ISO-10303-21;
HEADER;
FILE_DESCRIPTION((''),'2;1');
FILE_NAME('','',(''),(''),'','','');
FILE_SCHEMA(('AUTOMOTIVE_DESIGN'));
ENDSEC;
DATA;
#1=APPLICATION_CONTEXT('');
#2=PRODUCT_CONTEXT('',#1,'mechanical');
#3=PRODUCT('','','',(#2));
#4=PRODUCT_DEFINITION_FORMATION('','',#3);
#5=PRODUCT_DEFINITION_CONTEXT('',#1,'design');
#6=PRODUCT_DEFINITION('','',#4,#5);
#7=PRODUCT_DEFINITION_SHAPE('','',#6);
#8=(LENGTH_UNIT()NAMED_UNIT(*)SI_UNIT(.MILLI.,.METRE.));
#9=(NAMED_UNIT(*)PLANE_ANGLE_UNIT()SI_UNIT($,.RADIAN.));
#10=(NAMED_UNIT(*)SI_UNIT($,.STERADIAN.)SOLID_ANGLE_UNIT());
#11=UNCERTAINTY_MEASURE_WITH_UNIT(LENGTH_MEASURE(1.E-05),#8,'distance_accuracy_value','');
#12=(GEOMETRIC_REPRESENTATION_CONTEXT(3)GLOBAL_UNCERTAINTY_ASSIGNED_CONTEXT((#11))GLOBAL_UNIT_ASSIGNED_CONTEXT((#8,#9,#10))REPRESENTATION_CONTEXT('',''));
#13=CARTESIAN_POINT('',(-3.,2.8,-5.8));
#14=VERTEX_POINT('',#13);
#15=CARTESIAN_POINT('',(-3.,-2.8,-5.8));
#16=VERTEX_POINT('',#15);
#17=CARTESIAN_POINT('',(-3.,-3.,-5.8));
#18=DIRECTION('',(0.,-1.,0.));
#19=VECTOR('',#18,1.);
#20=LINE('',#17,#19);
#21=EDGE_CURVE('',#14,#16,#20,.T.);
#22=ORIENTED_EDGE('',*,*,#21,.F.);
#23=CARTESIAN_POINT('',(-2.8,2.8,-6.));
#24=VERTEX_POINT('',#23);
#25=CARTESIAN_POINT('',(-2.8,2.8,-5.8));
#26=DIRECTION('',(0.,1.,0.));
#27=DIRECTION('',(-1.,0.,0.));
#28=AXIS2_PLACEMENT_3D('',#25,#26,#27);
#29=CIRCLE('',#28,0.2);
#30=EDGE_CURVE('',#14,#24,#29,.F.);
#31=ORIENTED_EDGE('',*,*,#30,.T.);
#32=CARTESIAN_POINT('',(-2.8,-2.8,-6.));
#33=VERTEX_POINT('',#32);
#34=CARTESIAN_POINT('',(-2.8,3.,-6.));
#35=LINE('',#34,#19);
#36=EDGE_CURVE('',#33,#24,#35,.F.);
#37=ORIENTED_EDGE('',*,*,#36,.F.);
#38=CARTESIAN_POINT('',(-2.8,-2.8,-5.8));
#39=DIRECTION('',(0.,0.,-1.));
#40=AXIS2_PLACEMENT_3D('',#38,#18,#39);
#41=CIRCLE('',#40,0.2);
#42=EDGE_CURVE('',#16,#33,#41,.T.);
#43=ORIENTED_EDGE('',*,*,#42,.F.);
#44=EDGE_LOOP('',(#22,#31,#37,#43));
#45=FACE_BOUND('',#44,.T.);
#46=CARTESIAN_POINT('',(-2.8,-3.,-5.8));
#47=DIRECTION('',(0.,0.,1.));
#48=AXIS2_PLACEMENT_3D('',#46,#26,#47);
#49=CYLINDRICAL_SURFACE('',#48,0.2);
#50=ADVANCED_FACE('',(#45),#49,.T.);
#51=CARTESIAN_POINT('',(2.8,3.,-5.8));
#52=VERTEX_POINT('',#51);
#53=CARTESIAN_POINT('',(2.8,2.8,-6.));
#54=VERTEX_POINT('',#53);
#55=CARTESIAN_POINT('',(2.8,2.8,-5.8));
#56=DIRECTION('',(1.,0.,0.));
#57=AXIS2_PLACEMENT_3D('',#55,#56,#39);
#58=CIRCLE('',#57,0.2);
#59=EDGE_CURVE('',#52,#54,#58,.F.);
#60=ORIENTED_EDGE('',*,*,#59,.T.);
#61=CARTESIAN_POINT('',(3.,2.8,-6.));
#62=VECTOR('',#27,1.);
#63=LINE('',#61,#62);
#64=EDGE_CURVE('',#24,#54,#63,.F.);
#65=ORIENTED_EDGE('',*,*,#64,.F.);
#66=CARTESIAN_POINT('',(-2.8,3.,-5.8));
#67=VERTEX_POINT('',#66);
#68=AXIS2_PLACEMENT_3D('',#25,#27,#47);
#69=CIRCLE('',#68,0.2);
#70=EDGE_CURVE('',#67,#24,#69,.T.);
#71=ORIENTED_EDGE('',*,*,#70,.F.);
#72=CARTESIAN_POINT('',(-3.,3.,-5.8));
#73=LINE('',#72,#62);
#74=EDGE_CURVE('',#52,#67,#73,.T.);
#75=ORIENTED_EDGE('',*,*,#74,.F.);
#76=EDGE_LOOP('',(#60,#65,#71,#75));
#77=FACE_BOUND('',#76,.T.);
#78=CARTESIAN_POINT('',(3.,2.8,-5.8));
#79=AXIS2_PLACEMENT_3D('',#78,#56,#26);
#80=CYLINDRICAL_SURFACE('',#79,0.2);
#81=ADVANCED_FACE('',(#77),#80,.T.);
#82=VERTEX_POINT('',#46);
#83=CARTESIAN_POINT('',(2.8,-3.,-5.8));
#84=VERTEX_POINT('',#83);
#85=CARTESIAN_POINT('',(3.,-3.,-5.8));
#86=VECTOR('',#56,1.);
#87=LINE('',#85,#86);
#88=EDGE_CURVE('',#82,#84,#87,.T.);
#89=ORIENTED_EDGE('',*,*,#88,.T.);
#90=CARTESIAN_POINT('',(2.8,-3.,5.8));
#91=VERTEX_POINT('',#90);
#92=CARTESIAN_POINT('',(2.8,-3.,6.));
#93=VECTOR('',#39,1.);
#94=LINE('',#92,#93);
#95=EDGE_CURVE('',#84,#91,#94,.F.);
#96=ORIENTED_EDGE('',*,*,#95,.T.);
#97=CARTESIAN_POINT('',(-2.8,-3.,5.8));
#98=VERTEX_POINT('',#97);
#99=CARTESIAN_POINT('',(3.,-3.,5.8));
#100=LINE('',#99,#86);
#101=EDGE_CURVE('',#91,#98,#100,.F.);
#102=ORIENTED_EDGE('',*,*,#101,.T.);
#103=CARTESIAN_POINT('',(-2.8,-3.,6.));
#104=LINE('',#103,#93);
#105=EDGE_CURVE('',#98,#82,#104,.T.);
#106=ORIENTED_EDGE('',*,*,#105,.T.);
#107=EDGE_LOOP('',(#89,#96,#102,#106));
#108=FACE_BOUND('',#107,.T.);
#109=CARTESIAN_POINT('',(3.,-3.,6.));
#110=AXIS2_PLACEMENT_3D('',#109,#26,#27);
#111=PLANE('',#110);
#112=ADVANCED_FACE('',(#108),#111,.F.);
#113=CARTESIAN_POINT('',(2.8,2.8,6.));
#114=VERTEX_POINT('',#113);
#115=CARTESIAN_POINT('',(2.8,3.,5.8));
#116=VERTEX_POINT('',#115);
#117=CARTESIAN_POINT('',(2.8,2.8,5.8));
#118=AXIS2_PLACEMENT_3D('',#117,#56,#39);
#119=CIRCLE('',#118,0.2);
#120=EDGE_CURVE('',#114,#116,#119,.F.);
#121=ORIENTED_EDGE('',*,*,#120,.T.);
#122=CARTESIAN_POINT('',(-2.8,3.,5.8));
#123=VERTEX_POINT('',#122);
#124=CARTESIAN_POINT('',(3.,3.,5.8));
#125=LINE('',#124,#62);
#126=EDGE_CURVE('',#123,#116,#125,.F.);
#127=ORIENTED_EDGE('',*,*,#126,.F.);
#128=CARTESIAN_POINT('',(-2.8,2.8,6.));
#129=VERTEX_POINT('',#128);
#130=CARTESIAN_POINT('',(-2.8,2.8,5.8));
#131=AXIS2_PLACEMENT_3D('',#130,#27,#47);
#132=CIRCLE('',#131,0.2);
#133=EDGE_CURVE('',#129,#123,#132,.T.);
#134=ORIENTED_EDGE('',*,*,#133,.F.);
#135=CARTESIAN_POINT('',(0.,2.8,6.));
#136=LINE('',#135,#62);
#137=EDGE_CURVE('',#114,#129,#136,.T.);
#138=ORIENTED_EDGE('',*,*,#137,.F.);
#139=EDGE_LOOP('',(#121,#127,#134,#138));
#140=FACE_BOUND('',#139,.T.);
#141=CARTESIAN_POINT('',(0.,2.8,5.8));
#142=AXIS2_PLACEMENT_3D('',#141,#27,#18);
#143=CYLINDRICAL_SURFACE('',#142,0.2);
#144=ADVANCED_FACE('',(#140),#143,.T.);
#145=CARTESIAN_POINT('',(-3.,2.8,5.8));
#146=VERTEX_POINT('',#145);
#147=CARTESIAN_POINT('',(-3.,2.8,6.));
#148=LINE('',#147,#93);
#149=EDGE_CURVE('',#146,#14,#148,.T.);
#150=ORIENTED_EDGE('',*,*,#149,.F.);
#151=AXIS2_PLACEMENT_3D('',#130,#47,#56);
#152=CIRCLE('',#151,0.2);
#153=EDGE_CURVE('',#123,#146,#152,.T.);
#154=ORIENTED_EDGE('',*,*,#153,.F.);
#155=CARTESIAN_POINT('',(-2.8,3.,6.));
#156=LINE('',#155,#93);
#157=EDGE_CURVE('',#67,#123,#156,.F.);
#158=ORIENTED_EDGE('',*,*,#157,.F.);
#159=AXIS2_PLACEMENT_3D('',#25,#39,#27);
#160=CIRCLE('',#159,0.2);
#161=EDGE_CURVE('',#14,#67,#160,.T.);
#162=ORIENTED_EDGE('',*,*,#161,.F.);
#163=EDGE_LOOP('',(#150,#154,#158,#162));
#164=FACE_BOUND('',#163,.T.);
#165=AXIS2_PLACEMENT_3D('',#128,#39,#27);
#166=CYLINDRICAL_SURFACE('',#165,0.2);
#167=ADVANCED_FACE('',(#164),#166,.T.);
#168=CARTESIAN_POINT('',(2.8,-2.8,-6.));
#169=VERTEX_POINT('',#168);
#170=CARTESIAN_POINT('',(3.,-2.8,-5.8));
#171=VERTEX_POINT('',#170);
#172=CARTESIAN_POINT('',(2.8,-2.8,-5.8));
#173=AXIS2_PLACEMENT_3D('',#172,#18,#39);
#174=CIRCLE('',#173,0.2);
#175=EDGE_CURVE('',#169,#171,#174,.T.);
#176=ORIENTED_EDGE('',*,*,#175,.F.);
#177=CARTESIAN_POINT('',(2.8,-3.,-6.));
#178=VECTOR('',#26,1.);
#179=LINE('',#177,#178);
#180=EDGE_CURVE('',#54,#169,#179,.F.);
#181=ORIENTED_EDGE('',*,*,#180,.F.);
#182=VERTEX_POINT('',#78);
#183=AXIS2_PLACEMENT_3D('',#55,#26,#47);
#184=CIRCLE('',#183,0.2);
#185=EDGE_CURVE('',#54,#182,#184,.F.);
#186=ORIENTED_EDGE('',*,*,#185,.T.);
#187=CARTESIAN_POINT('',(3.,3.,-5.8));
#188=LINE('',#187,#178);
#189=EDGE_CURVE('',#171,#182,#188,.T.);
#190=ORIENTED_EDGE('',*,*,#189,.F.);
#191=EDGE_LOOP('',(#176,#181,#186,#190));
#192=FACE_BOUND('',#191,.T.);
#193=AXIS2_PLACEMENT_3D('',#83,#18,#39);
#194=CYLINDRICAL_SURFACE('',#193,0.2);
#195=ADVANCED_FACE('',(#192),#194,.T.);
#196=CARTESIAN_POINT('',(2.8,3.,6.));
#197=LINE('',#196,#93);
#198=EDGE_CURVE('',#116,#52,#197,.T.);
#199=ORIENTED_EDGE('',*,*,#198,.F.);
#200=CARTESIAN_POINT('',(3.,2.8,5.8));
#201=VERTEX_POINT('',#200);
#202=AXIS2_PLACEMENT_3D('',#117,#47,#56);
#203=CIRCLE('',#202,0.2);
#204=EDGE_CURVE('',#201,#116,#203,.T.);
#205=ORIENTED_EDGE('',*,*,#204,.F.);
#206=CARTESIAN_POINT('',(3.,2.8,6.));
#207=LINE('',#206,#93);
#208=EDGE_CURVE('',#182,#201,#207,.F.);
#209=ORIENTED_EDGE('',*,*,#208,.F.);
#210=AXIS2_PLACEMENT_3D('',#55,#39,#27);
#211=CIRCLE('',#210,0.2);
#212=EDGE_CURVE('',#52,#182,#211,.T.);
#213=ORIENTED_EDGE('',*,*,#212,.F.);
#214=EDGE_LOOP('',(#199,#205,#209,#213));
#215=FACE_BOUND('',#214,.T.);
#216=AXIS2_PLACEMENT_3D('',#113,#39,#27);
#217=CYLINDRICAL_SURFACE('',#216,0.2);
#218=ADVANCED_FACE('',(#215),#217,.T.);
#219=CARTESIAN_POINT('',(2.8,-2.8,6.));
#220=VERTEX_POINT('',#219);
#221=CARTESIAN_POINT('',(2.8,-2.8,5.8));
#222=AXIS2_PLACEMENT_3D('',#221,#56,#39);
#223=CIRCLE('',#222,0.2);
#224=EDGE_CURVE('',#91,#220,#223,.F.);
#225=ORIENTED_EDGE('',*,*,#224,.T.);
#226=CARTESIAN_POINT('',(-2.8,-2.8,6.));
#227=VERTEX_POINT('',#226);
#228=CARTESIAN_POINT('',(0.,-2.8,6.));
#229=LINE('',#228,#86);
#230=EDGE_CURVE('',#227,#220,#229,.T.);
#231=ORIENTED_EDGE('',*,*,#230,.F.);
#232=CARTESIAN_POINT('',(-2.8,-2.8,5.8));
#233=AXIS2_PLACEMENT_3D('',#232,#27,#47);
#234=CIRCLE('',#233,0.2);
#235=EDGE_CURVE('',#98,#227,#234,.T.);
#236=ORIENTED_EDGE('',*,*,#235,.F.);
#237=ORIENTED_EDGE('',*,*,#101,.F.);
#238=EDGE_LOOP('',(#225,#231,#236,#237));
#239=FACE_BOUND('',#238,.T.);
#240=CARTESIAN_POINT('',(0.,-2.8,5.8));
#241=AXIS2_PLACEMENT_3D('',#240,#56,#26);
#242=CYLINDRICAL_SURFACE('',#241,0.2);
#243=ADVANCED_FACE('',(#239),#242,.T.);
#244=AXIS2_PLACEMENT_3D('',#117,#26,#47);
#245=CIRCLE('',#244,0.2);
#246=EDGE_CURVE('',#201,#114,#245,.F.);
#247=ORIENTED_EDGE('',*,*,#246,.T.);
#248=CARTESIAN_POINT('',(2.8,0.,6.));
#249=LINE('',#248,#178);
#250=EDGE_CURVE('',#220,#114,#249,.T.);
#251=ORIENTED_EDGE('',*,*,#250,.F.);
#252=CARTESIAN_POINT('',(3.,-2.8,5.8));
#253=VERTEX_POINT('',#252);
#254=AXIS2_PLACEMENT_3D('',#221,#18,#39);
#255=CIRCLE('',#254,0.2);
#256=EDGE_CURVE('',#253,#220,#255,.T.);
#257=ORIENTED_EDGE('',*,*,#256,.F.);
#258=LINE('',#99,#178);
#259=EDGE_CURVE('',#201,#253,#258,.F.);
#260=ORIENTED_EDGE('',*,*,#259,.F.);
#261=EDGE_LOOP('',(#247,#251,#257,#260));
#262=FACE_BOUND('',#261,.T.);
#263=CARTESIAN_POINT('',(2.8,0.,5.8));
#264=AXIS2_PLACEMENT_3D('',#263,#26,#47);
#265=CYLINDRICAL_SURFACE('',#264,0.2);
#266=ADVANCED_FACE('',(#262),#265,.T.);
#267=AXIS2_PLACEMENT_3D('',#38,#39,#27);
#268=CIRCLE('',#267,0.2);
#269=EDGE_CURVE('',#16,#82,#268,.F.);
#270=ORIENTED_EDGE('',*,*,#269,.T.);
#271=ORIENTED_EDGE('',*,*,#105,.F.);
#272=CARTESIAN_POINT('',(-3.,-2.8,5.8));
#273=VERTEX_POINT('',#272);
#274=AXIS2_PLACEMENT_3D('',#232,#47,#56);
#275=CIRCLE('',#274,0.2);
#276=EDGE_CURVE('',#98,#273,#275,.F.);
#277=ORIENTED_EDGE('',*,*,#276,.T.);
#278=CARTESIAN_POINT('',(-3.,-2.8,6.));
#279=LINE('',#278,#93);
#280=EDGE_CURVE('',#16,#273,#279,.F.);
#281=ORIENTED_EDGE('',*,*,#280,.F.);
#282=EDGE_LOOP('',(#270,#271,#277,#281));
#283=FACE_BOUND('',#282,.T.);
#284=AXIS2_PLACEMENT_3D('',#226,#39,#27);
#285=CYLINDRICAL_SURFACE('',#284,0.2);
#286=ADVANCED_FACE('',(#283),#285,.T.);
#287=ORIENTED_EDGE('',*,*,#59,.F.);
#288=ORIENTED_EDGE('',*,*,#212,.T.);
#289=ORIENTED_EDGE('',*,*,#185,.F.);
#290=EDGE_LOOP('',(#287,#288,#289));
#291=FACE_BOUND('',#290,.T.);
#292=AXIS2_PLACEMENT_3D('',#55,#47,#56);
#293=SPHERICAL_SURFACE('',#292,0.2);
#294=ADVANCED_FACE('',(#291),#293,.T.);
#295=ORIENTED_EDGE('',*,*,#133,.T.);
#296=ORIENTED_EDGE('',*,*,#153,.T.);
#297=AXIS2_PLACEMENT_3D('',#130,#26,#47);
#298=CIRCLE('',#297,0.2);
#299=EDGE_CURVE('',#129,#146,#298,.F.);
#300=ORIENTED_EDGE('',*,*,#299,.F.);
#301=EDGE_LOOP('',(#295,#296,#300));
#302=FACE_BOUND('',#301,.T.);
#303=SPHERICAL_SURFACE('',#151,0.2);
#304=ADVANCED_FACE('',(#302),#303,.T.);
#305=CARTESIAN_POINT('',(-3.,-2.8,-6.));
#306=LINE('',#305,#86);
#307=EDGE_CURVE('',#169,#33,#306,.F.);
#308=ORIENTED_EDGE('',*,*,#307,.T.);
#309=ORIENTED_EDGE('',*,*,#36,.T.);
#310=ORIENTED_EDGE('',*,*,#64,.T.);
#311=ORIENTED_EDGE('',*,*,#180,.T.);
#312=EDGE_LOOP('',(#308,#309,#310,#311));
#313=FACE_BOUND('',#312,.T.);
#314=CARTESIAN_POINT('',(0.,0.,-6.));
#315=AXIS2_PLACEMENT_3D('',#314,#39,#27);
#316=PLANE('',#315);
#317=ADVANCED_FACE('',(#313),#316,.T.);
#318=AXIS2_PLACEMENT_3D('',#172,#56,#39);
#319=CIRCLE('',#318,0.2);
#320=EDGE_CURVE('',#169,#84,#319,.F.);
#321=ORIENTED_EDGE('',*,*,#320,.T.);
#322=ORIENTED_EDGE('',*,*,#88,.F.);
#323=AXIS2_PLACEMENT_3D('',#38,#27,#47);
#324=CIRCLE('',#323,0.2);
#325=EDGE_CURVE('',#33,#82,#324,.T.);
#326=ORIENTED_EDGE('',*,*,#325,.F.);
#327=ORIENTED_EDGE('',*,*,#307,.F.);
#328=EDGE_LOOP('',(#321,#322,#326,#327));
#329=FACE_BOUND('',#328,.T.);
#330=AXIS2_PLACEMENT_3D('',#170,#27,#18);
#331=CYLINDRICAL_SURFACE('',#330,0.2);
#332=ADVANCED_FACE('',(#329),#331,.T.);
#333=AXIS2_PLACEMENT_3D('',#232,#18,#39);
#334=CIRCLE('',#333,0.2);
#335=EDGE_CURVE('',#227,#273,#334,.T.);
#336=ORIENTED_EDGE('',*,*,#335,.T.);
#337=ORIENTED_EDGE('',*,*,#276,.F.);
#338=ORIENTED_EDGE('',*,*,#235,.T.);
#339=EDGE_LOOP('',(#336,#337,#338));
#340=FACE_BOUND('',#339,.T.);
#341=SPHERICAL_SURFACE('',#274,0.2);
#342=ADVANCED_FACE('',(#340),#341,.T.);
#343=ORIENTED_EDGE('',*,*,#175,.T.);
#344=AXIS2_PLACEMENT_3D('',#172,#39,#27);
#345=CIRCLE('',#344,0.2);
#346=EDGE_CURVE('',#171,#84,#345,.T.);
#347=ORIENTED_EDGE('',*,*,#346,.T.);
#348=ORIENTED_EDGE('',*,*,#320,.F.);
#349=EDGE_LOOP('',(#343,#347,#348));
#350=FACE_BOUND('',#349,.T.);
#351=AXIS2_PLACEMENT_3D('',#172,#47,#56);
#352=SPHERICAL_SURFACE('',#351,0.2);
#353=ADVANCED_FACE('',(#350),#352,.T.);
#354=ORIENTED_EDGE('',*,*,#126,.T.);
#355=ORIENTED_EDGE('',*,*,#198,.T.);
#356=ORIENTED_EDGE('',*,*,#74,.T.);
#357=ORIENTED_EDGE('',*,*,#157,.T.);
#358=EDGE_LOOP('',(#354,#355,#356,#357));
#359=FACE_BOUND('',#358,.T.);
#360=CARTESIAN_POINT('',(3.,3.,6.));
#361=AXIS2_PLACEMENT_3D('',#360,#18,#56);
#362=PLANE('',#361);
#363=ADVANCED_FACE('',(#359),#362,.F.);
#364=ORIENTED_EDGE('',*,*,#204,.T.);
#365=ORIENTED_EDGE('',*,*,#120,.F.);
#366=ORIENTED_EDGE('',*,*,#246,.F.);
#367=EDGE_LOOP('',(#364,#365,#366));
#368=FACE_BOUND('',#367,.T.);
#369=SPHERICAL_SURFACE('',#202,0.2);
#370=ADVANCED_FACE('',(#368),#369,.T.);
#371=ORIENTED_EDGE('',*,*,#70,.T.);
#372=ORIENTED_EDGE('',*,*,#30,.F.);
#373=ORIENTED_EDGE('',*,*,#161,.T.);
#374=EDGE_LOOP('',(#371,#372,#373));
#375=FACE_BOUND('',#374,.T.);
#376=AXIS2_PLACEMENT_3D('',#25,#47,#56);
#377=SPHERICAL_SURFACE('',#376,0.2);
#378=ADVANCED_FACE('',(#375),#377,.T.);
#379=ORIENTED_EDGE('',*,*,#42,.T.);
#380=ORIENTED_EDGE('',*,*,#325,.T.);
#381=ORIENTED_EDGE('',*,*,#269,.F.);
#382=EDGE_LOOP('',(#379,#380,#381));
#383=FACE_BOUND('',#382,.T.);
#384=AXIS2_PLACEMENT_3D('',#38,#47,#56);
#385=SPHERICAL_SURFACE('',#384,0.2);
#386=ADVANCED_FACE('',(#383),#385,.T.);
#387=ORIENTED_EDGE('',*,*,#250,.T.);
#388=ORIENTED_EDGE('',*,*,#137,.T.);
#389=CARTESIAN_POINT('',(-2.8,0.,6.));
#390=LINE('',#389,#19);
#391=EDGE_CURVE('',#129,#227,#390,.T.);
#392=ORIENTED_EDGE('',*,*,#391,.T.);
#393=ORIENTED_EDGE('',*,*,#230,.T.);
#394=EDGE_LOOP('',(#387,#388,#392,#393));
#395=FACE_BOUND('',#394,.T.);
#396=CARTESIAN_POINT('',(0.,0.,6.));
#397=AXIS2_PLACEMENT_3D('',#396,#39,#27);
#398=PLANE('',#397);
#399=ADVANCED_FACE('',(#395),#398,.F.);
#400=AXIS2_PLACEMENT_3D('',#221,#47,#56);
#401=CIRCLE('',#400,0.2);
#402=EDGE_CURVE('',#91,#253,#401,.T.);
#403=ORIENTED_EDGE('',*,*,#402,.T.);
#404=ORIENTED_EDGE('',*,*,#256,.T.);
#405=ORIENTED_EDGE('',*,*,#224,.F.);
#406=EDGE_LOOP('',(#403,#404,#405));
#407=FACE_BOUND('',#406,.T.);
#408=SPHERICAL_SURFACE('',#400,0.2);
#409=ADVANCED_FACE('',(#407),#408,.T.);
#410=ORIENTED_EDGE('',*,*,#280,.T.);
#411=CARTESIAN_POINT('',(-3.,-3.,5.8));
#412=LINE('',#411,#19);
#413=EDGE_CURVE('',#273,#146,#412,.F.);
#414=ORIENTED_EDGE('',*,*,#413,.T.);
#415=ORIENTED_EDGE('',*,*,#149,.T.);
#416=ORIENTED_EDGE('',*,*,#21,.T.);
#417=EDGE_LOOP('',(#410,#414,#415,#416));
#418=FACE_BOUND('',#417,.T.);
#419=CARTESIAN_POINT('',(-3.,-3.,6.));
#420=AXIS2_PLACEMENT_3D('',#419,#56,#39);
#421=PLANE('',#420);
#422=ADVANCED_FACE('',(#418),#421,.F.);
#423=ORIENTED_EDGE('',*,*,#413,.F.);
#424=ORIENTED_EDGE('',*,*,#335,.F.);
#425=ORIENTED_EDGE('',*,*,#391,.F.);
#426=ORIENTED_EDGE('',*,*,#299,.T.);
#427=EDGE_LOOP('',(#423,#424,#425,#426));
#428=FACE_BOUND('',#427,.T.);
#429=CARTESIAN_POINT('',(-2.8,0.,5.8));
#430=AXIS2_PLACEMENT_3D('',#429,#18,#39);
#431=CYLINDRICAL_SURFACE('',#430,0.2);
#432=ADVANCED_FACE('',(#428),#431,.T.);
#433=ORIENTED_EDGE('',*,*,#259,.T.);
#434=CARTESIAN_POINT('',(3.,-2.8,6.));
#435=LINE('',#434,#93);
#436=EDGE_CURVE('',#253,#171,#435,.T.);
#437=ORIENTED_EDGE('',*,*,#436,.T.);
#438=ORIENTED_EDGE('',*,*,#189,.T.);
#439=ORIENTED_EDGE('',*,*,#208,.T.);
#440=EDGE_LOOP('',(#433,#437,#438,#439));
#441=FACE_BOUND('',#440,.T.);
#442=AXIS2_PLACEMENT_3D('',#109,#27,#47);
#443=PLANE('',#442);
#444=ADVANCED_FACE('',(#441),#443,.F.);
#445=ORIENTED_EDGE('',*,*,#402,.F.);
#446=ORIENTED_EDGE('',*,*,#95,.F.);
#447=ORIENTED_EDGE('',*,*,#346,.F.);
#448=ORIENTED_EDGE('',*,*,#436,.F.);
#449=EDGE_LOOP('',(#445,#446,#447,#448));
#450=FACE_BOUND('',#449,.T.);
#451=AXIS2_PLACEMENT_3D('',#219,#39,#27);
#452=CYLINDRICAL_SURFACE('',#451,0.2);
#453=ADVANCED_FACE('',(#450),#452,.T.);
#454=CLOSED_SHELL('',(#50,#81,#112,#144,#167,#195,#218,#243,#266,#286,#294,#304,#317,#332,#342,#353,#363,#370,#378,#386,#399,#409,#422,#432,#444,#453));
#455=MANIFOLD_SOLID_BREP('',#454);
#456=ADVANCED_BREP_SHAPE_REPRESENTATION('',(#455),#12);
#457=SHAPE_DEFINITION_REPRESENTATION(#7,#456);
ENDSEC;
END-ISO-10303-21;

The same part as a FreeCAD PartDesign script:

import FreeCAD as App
import Part
import Sketcher
Q = App.Units.Quantity

doc = App.newDocument("Part")
body = doc.addObject("PartDesign::Body", "Body")

# Sketch on XY plane
sketch1 = doc.addObject("Sketcher::SketchObject", "Sketch")
body.addObject(sketch1)
sketch1.AttachmentSupport = (doc.XY_Plane, [""])
sketch1.MapMode = "FlatFace"
sketch1.addGeometry([
    Part.LineSegment(App.Vector(-3, 3, 0), App.Vector(-3, -3, 0)),
    Part.LineSegment(App.Vector(-3, -3, 0), App.Vector(3, -3, 0)),
    Part.LineSegment(App.Vector(3, -3, 0), App.Vector(3, 3, 0)),
    Part.LineSegment(App.Vector(3, 3, 0), App.Vector(-3, 3, 0)),
], False)
sketch1.addConstraint([
    Sketcher.Constraint("Coincident", 0, 2, 1, 1),
    Sketcher.Constraint("Coincident", 1, 2, 2, 1),
    Sketcher.Constraint("Coincident", 2, 2, 3, 1),
    Sketcher.Constraint("Coincident", 3, 2, 0, 1),
    Sketcher.Constraint("Vertical", 0),
    Sketcher.Constraint("Horizontal", 1),
    Sketcher.Constraint("Vertical", 2),
    Sketcher.Constraint("Horizontal", 3),
    Sketcher.Constraint("Symmetric", 0, 2, 2, 2, -1, 1),
    Sketcher.Constraint("Equal", 3, 0),
    Sketcher.Constraint("DistanceX", 1, 1, 1, 2, Q("6 mm")),
])
pad1 = doc.addObject("PartDesign::Pad", "Pad")
body.addObject(pad1)
pad1.Profile = sketch1
pad1.Type = "TwoLengths"
pad1.Length = 6
pad1.Length2 = 6
doc.recompute()

fillet = doc.addObject("PartDesign::Fillet", "Fillet")
body.addObject(fillet)
fillet.Base = (pad1, ["Edge1"])
fillet.UseAllEdges = True
fillet.Radius = 0.2

doc.recompute()
